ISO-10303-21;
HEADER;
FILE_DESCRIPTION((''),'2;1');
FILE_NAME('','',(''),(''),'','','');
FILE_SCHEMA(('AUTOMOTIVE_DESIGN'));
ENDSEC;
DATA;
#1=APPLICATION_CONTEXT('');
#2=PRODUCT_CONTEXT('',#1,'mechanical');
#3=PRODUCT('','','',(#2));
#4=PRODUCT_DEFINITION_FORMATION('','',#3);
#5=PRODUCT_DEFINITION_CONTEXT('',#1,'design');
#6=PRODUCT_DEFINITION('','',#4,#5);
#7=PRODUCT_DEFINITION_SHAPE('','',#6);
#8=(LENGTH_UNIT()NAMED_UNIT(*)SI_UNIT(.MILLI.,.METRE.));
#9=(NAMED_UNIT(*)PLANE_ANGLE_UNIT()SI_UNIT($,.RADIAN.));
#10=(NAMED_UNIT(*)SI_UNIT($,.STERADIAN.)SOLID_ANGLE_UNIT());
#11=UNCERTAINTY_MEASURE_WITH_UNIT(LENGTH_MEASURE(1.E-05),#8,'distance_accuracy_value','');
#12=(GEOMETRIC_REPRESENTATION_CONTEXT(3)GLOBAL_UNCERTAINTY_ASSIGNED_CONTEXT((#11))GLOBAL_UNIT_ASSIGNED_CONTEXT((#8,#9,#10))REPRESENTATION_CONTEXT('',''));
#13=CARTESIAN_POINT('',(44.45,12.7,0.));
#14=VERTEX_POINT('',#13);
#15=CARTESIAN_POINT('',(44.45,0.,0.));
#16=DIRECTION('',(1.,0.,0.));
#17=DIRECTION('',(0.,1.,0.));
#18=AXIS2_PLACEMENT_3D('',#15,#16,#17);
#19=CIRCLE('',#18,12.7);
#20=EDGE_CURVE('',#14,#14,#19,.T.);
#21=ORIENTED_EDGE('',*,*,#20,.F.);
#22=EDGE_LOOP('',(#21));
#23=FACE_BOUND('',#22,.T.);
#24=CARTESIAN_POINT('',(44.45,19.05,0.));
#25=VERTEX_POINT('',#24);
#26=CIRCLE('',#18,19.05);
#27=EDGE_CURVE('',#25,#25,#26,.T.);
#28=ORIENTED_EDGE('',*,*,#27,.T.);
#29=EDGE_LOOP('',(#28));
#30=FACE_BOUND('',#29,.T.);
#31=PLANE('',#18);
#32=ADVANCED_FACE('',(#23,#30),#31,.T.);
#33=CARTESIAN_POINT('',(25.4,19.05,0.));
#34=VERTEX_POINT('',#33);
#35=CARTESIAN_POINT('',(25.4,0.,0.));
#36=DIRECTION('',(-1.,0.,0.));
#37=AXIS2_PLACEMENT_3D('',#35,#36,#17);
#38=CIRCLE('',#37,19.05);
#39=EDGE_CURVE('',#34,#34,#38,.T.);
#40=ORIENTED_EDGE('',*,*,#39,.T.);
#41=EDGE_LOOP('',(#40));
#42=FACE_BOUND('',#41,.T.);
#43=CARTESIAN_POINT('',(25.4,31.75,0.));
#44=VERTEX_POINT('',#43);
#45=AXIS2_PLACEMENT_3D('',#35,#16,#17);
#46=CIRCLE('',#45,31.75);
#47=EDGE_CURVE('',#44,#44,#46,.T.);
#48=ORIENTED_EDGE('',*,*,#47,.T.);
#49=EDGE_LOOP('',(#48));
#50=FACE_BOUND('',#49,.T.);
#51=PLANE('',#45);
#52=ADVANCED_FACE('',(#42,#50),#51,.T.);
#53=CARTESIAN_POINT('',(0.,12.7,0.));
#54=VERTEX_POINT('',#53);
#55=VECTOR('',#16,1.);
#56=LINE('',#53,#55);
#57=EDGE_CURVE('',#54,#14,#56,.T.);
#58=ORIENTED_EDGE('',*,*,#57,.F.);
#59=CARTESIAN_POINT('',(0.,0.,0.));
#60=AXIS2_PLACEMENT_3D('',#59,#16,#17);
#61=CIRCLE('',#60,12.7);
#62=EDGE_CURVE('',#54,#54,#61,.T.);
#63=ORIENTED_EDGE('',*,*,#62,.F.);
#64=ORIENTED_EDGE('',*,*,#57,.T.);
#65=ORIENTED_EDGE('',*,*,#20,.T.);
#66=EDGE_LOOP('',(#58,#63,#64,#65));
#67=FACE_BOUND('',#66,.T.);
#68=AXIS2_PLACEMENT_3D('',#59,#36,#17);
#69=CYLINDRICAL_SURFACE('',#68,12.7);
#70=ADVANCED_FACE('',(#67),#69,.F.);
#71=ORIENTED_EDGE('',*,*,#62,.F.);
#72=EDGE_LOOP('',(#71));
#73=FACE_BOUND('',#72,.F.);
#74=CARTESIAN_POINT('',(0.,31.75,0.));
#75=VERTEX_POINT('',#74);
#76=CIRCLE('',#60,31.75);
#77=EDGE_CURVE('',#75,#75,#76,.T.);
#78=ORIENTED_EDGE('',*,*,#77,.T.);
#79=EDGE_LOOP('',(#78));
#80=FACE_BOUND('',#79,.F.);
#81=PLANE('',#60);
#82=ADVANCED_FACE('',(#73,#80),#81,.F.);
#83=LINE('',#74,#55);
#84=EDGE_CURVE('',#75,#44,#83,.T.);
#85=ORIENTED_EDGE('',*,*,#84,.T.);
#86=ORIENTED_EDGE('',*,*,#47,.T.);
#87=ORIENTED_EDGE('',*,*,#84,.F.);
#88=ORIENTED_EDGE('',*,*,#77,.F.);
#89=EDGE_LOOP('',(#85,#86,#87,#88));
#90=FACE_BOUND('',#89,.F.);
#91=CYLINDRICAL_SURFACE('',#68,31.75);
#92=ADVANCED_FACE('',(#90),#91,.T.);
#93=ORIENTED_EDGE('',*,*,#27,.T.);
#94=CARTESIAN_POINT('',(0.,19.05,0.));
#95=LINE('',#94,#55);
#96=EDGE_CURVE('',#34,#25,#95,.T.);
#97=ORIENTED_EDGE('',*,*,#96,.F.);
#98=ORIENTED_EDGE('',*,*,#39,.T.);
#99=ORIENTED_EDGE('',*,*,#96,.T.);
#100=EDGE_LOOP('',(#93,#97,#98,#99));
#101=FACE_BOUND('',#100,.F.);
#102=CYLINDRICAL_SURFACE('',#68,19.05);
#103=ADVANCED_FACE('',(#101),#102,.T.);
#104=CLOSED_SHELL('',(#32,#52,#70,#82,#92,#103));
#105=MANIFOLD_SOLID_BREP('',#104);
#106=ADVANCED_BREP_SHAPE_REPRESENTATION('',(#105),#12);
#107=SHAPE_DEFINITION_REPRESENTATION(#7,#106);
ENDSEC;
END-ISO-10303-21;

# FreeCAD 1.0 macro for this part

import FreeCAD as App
import Part
import Sketcher

V = App.Vector
Q = App.Units.Quantity

doc = App.newDocument("Part")
params = doc.addObject("Spreadsheet::Sheet", "Params")
for row, (alias, value) in enumerate([
    ("sketch1_diameter", "2.5 in"),
    ("pad1_length", "1 in"),
    ("sketch2_diameter", "1.5 in"),
    ("pad2_length", "1.75 in"),
    ("sketch3_diameter", "1 in"),
    ("pocket1_length", "1.75 in"),
], start=1):
    params.set(f"A{row}", alias)
    params.set(f"B{row}", "=" + value)
    params.setAlias(f"B{row}", alias)

body = doc.addObject("PartDesign::Body", "Body")

# Sketch on YZ plane
sketch1 = body.newObject("Sketcher::SketchObject", "Sketch")
sketch1.AttachmentSupport = (doc.getObject("YZ_Plane"), [""])
sketch1.MapMode = "FlatFace"
sketch1.addGeometry(Part.Circle(V(0, 0, 0), V(0, 0, 1), 31.75), False)
sketch1.addConstraint([
    Sketcher.Constraint("Coincident", 0, 3, -1, 1),
    Sketcher.Constraint("Diameter", 0, Q("2.5 in")),
])
sketch1.setExpression("Constraints[1]", "Params.sketch1_diameter")
pad1 = body.newObject("PartDesign::Pad", "Pad")
pad1.Profile = sketch1
pad1.setExpression("Length", "Params.pad1_length")

# Sketch on YZ plane
sketch2 = body.newObject("Sketcher::SketchObject", "Sketch001")
sketch2.AttachmentSupport = (doc.getObject("YZ_Plane"), [""])
sketch2.MapMode = "FlatFace"
sketch2.addGeometry(Part.Circle(V(0, 0, 0), V(0, 0, 1), 19.05), False)
sketch2.addConstraint([
    Sketcher.Constraint("Coincident", 0, 3, -1, 1),
    Sketcher.Constraint("Diameter", 0, Q("1.5 in")),
])
sketch2.setExpression("Constraints[1]", "Params.sketch2_diameter")
pad2 = body.newObject("PartDesign::Pad", "Pad001")
pad2.Profile = sketch2
pad2.setExpression("Length", "Params.pad2_length")

# Sketch on YZ plane
sketch3 = body.newObject("Sketcher::SketchObject", "Sketch002")
sketch3.AttachmentSupport = (doc.getObject("YZ_Plane"), [""])
sketch3.MapMode = "FlatFace"
sketch3.addGeometry(Part.Circle(V(0, 0, 0), V(0, 0, 1), 12.7), False)
sketch3.addConstraint([
    Sketcher.Constraint("Coincident", 0, 3, -1, 1),
    Sketcher.Constraint("Diameter", 0, Q("1 in")),
])
sketch3.setExpression("Constraints[1]", "Params.sketch3_diameter")
pocket1 = body.newObject("PartDesign::Pocket", "Pocket")
pocket1.Profile = sketch3
pocket1.setExpression("Length", "Params.pocket1_length")
pocket1.Reversed = True

doc.recompute()
